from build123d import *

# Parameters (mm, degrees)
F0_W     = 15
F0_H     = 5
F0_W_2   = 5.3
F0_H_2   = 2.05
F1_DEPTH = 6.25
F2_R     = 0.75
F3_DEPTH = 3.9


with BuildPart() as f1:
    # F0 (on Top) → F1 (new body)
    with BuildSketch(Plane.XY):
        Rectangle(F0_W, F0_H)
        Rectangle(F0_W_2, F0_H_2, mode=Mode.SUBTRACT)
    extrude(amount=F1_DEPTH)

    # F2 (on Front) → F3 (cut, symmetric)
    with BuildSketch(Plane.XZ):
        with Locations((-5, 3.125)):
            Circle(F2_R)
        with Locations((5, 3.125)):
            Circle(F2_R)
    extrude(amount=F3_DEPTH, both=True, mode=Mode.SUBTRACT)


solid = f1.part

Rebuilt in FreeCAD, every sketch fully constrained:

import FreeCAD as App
import Part
import Sketcher
Q = App.Units.Quantity


def add_polygon(sketch, points):
    """Adds a closed chain of lines whose ends are joined by coincident constraints."""
    first, n = sketch.GeometryCount, len(points)
    for a, b in zip(points, points[1:] + points[:1]):
        sketch.addGeometry(Part.LineSegment(App.Vector(*a, 0), App.Vector(*b, 0)), False)
    for i in range(n):
        sketch.addConstraint(Sketcher.Constraint("Coincident", first + i, 2, first + (i + 1) % n, 1))

doc = App.newDocument("Part")
body = doc.addObject("PartDesign::Body", "Body")

# Sketch on XY plane
sketch1 = doc.addObject("Sketcher::SketchObject", "Sketch")
body.addObject(sketch1)
sketch1.AttachmentSupport = (doc.XY_Plane, [""])
sketch1.MapMode = "FlatFace"
add_polygon(sketch1, [(-7.5, 2.5), (-7.5, -2.5), (7.5, -2.5), (7.5, 2.5)])  # lines 0-3
add_polygon(sketch1, [(2.6, -1), (-2.6, -1), (-2.6, 1), (2.6, 1)])  # lines 4-7
sketch1.addConstraint(Sketcher.Constraint("Vertical", 0))
sketch1.addConstraint(Sketcher.Constraint("Horizontal", 1))
sketch1.addConstraint(Sketcher.Constraint("Vertical", 2))
sketch1.addConstraint(Sketcher.Constraint("Horizontal", 3))
sketch1.addConstraint(Sketcher.Constraint("Horizontal", 4))
sketch1.addConstraint(Sketcher.Constraint("Vertical", 5))
sketch1.addConstraint(Sketcher.Constraint("Horizontal", 6))
sketch1.addConstraint(Sketcher.Constraint("Vertical", 7))
sketch1.addConstraint(Sketcher.Constraint("Symmetric", 0, 2, 2, 2, -1, 1))
sketch1.addConstraint(Sketcher.Constraint("Symmetric", 4, 2, 6, 2, -1, 1))
sketch1.addConstraint(Sketcher.Constraint("DistanceX", 1, 1, 1, 2, Q("15 mm")))
sketch1.addConstraint(Sketcher.Constraint("DistanceY", 0, 2, 0, 1, Q("5 mm")))
sketch1.addConstraint(Sketcher.Constraint("DistanceX", 4, 2, 4, 1, Q("5.3 mm")))
sketch1.addConstraint(Sketcher.Constraint("DistanceY", 5, 1, 5, 2, Q("2.05 mm")))
pad1 = doc.addObject("PartDesign::Pad", "Pad")
body.addObject(pad1)
pad1.Profile = sketch1
pad1.Length = 6.25

# Sketch on XZ plane
sketch2 = doc.addObject("Sketcher::SketchObject", "Sketch001")
body.addObject(sketch2)
sketch2.AttachmentSupport = (doc.XZ_Plane, [""])
sketch2.MapMode = "FlatFace"
sketch2.addGeometry(Part.Circle(App.Vector(-5, 3.1, 0), App.Vector(0, 0, 1), 0.8), False)
sketch2.addGeometry(Part.Circle(App.Vector(5, 3.1, 0), App.Vector(0, 0, 1), 0.8), False)
sketch2.addConstraint(Sketcher.Constraint("Equal", 0, 1))
sketch2.addConstraint(Sketcher.Constraint("Symmetric", 0, 3, 1, 3, -2))
sketch2.addConstraint(Sketcher.Constraint("Diameter", 0, Q("1.5 mm")))
sketch2.addConstraint(Sketcher.Constraint("DistanceX", 0, 3, -1, 1, Q("5 mm")))
sketch2.addConstraint(Sketcher.Constraint("DistanceY", -1, 1, 0, 3, Q("3.125 mm")))
pocket1 = doc.addObject("PartDesign::Pocket", "Pocket")
body.addObject(pocket1)
pocket1.Profile = sketch2
pocket1.Length = 7.8
pocket1.Midplane = True

doc.recompute()
